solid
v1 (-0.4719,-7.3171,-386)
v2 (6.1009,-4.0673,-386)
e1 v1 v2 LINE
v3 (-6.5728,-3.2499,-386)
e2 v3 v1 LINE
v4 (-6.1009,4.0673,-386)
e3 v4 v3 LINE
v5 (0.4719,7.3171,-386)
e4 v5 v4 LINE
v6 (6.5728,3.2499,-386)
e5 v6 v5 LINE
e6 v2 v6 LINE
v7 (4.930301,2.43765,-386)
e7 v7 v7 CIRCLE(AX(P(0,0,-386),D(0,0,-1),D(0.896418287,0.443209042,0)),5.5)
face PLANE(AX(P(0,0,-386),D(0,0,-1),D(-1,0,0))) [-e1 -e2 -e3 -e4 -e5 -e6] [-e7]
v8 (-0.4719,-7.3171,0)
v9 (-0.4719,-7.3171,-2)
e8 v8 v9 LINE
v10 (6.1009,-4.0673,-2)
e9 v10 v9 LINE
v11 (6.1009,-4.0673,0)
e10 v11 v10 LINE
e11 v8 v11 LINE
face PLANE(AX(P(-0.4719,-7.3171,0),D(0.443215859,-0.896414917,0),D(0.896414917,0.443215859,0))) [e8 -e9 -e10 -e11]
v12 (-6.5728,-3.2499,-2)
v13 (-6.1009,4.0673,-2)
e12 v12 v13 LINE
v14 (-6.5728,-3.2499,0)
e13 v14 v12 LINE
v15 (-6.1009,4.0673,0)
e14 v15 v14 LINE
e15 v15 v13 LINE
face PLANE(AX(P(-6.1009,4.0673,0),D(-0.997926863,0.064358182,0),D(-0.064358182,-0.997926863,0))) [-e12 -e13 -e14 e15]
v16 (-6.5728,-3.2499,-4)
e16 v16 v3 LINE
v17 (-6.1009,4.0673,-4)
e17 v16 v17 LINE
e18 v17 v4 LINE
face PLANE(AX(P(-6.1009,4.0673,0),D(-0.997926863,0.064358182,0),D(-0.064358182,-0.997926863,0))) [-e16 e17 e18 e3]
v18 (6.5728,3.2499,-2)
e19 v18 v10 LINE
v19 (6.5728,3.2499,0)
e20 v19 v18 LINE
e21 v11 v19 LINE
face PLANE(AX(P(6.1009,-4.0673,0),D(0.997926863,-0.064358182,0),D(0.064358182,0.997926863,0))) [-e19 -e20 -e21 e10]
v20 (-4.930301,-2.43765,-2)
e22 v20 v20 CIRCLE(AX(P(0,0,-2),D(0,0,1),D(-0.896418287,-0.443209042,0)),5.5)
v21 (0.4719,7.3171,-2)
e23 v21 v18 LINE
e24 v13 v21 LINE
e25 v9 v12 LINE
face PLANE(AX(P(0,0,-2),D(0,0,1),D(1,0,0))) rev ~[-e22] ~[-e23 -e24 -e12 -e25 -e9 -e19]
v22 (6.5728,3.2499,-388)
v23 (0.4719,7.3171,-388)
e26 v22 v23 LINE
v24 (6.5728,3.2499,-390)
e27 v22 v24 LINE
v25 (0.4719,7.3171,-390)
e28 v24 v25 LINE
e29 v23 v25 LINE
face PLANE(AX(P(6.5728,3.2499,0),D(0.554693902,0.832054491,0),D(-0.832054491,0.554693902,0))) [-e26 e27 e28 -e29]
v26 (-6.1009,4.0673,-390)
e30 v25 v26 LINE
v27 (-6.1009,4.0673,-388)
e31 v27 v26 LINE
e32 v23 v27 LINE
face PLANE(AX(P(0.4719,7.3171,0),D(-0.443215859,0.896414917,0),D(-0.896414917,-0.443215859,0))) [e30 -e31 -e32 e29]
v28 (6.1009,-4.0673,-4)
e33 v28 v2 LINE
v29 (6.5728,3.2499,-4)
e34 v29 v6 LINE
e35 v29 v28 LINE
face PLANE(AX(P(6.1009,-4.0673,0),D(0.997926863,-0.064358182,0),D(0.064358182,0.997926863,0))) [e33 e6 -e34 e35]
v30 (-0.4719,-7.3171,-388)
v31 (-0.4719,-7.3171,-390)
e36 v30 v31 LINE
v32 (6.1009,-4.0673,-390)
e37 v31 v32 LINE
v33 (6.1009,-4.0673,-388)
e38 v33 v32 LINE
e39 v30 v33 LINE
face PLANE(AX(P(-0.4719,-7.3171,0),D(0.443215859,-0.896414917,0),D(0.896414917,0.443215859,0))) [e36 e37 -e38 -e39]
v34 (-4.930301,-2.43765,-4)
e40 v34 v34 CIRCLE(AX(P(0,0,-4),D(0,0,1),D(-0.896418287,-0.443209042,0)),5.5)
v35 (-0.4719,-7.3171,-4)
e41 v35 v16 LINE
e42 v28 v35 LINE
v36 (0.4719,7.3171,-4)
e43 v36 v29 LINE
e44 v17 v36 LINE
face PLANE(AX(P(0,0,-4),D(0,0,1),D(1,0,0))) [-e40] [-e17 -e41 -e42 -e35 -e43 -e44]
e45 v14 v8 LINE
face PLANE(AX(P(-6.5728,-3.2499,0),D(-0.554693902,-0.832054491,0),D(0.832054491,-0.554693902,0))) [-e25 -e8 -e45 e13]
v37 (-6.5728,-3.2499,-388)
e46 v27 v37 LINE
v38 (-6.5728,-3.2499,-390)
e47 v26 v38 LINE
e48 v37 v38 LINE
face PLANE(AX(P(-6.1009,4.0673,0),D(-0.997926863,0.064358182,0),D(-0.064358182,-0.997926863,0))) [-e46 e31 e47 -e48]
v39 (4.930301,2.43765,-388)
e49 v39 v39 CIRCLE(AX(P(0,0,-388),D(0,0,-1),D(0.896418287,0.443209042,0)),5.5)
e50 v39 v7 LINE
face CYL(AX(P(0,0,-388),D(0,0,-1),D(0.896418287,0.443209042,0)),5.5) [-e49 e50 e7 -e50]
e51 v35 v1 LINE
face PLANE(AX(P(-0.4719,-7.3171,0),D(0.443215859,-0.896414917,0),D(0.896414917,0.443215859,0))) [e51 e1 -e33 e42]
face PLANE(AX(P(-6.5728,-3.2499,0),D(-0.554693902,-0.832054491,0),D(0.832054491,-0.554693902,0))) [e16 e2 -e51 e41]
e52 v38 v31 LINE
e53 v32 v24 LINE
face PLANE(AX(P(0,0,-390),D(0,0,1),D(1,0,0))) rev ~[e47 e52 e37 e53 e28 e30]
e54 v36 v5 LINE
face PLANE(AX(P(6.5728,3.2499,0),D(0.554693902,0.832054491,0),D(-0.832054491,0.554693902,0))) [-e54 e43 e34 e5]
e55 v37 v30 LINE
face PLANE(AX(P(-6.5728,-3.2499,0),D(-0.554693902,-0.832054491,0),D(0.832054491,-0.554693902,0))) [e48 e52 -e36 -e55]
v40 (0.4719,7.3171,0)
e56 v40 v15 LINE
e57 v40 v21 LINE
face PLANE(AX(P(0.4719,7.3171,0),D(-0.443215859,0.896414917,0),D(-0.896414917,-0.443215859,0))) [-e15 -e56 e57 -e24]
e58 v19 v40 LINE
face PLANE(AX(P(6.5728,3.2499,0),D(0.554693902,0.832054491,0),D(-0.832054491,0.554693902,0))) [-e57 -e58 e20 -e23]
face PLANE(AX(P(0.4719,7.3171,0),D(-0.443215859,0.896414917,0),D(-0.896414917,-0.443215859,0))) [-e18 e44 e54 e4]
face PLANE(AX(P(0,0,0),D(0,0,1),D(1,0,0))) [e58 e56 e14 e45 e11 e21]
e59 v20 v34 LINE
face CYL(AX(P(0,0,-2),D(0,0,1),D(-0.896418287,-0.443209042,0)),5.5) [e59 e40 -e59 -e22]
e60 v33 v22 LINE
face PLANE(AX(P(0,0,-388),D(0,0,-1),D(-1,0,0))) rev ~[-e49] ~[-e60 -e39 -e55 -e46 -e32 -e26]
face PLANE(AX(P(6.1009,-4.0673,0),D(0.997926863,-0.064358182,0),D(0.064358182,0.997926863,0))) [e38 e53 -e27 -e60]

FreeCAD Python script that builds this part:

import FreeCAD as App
import Part
import Sketcher
Q = App.Units.Quantity


def add_polygon(sketch, points):
    """Adds a closed chain of lines whose ends are joined by coincident constraints."""
    first, n = sketch.GeometryCount, len(points)
    for a, b in zip(points, points[1:] + points[:1]):
        sketch.addGeometry(Part.LineSegment(App.Vector(*a, 0), App.Vector(*b, 0)), False)
    for i in range(n):
        sketch.addConstraint(Sketcher.Constraint("Coincident", first + i, 2, first + (i + 1) % n, 1))

doc = App.newDocument("Part")
body = doc.addObject("PartDesign::Body", "Body")

# Sketch on XY plane
sketch1 = body.newObject("Sketcher::SketchObject", "Sketch")
sketch1.AttachmentSupport = (doc.getObject("XY_Plane"), [""])
sketch1.MapMode = "FlatFace"
add_polygon(sketch1, [(0, 7), (-6, 4), (-7, -3), (0, -7), (6, -4), (7, 3)])  # lines 0-5
sketch1.addConstraint([
    Sketcher.Constraint("Symmetric", 0, 2, 3, 2, -1, 1),
    Sketcher.Constraint("Symmetric", 1, 2, 4, 2, -1, 1),
    Sketcher.Constraint("Symmetric", 2, 2, 5, 2, -1, 1),
    Sketcher.Constraint("Equal", 0, 1),
    Sketcher.Constraint("Equal", 1, 2),
    Sketcher.Constraint("Angle", 0, Q("-153.6908 deg")),
    Sketcher.Constraint("Angle", 1, Q("-93.69 deg")),
    Sketcher.Constraint("Angle", 2, Q("-33.6896 deg")),
    Sketcher.Constraint("DistanceY", 1, 2, -1, 1, 3.25),
])
pad1 = body.newObject("PartDesign::Pad", "Pad")
pad1.Profile = sketch1
pad1.Length = 390
pad1.Reversed = True

# Sketch on XY plane
sketch2 = body.newObject("Sketcher::SketchObject", "Sketch001")
sketch2.AttachmentSupport = (doc.getObject("XY_Plane"), [""])
sketch2.MapMode = "FlatFace"
sketch2.AttachmentOffset = App.Placement(App.Vector(0, 0, -2), App.Rotation())
sketch2.addGeometry([
    Part.Circle(App.Vector(0, 0, 0), App.Vector(0, 0, 1), 13),
    Part.Circle(App.Vector(0, 0, 0), App.Vector(0, 0, 1), 6),
], False)
sketch2.addConstraint([
    Sketcher.Constraint("Coincident", 0, 3, -1, 1),
    Sketcher.Constraint("Coincident", 1, 3, -1, 1),
    Sketcher.Constraint("Diameter", 1, 11.0),
    Sketcher.Constraint("Diameter", 0, 26.2848),
])
pocket1 = body.newObject("PartDesign::Pocket", "Pocket")
pocket1.Profile = sketch2
pocket1.Length = 2

# Sketch on XY plane
sketch3 = body.newObject("Sketcher::SketchObject", "Sketch002")
sketch3.AttachmentSupport = (doc.getObject("XY_Plane"), [""])
sketch3.MapMode = "FlatFace"
sketch3.AttachmentOffset = App.Placement(App.Vector(0, 0, -388), App.Rotation())
sketch3.addGeometry([
    Part.Circle(App.Vector(0, 0, 0), App.Vector(0, 0, 1), 13),
    Part.Circle(App.Vector(0, 0, 0), App.Vector(0, 0, 1), 6),
], False)
sketch3.addConstraint([
    Sketcher.Constraint("Coincident", 0, 3, -1, 1),
    Sketcher.Constraint("Coincident", 1, 3, -1, 1),
    Sketcher.Constraint("Diameter", 1, 11.0),
    Sketcher.Constraint("Diameter", 0, 26.2848),
])
pocket2 = body.newObject("PartDesign::Pocket", "Pocket001")
pocket2.Profile = sketch3
pocket2.Length = 2
pocket2.Reversed = True

doc.recompute()
